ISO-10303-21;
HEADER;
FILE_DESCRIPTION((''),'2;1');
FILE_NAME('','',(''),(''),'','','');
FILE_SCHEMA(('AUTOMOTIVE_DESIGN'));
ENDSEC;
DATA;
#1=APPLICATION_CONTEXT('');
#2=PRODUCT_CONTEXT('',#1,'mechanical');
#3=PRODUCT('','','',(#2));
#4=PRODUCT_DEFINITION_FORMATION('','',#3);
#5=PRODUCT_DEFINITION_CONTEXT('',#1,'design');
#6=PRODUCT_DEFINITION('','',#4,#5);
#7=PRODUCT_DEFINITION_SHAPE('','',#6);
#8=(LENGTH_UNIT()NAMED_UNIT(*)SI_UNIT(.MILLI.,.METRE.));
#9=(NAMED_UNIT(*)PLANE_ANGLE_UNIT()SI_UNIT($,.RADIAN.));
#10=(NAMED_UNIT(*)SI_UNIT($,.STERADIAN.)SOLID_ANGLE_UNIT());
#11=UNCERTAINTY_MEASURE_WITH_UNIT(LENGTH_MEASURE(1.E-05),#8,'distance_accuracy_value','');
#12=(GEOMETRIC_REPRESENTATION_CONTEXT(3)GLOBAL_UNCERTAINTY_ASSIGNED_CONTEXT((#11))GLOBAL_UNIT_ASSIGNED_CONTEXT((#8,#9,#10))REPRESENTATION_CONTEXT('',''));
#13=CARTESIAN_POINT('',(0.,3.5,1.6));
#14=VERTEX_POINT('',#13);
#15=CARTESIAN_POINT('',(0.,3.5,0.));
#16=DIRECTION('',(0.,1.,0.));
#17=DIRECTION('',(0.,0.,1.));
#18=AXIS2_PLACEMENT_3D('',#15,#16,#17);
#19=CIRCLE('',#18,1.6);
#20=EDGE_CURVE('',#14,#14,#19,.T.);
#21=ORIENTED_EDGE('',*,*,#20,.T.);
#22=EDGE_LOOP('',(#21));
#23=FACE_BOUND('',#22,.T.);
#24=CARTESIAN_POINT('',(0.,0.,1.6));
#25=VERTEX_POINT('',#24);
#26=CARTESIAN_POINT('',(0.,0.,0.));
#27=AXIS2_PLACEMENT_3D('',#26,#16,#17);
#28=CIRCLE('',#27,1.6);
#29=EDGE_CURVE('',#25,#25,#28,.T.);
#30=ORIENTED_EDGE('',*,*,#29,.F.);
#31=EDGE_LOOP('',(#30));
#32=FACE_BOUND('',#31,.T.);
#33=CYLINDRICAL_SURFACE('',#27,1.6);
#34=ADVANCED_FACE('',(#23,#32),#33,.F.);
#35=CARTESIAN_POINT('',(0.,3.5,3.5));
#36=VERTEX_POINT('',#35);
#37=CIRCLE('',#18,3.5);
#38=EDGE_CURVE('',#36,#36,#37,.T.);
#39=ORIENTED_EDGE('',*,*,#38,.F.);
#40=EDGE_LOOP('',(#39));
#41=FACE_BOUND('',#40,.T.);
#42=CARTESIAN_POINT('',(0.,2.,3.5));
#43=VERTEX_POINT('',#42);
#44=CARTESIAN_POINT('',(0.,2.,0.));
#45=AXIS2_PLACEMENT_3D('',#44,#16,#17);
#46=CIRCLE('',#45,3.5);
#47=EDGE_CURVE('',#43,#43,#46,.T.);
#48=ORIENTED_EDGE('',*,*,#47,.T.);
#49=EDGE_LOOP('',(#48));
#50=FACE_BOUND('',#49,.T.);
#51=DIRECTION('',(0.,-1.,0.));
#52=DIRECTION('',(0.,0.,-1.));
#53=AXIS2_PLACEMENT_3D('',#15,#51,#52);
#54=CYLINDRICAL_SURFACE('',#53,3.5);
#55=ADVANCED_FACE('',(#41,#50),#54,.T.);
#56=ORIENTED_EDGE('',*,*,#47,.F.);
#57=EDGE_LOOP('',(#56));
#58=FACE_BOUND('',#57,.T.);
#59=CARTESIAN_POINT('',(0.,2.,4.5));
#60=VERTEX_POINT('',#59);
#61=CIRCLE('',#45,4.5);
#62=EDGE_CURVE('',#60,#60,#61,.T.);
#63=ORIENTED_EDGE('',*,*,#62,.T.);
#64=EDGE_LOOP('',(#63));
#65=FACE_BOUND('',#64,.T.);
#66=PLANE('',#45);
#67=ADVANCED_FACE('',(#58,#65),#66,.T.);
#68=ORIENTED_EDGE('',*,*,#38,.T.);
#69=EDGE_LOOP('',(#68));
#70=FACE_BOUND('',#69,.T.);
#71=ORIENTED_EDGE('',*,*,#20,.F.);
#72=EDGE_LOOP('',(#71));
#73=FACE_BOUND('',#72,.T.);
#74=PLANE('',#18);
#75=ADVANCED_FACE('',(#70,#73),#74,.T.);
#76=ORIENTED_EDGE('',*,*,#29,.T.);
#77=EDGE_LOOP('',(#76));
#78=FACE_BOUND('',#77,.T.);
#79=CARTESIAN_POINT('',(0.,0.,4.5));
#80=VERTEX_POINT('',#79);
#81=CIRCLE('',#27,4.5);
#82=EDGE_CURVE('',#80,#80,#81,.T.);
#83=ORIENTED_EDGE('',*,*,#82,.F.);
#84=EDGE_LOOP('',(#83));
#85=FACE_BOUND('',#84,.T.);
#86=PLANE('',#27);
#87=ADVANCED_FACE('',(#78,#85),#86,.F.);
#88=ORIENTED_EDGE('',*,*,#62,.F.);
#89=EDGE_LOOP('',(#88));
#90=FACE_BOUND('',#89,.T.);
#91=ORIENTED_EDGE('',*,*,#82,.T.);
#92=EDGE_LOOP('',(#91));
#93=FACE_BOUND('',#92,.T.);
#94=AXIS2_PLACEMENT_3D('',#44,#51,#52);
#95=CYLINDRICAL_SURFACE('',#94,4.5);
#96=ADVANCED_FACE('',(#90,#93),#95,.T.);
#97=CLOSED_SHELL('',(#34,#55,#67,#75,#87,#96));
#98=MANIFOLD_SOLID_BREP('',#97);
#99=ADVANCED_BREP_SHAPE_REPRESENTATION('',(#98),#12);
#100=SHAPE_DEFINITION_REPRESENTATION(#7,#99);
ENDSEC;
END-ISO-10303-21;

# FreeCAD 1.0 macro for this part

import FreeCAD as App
import Part
import Sketcher
Q = App.Units.Quantity

doc = App.newDocument("Part")
params = doc.addObject("Spreadsheet::Sheet", "Params")
for row, (alias, value) in enumerate([
    ("sketch1_diameter", "9 mm"),
    ("pad1_length", "2 mm"),
    ("sketch2_diameter", "7 mm"),
    ("pad2_length", "1.5 mm"),
    ("sketch3_diameter", "3.2 mm"),
], start=1):
    params.set(f"A{row}", alias)
    params.set(f"B{row}", "=" + value)
    params.setAlias(f"B{row}", alias)

body = doc.addObject("PartDesign::Body", "Body")

# Sketch on XZ plane
sketch1 = body.newObject("Sketcher::SketchObject", "Sketch")
sketch1.AttachmentSupport = (doc.getObject("XZ_Plane"), [""])
sketch1.MapMode = "FlatFace"
sketch1.addGeometry(Part.Circle(App.Vector(0, 0, 0), App.Vector(0, 0, 1), 4.5), False)
sketch1.addConstraint(Sketcher.Constraint("Coincident", 0, 3, -1, 1))
sketch1.addConstraint(Sketcher.Constraint("Diameter", 0, Q("9 mm")))
sketch1.setExpression("Constraints[1]", "Params.sketch1_diameter")
pad1 = body.newObject("PartDesign::Pad", "Pad")
pad1.Profile = sketch1
pad1.setExpression("Length", "Params.pad1_length")
pad1.Reversed = True

# Sketch on XZ plane
sketch2 = body.newObject("Sketcher::SketchObject", "Sketch001")
sketch2.AttachmentSupport = (doc.getObject("XZ_Plane"), [""])
sketch2.MapMode = "FlatFace"
sketch2.AttachmentOffset = App.Placement(App.Vector(0, 0, -2), App.Rotation())
sketch2.addGeometry(Part.Circle(App.Vector(0, 0, 0), App.Vector(0, 0, 1), 3.5), False)
sketch2.addConstraint(Sketcher.Constraint("Coincident", 0, 3, -1, 1))
sketch2.addConstraint(Sketcher.Constraint("Diameter", 0, Q("7 mm")))
sketch2.setExpression("Constraints[1]", "Params.sketch2_diameter")
pad2 = body.newObject("PartDesign::Pad", "Pad001")
pad2.Profile = sketch2
pad2.setExpression("Length", "Params.pad2_length")
pad2.Reversed = True

# Sketch on XZ plane
sketch3 = body.newObject("Sketcher::SketchObject", "Sketch002")
sketch3.AttachmentSupport = (doc.getObject("XZ_Plane"), [""])
sketch3.MapMode = "FlatFace"
sketch3.AttachmentOffset = App.Placement(App.Vector(0, 0, -3.5), App.Rotation())
sketch3.addGeometry(Part.Circle(App.Vector(0, 0, 0), App.Vector(0, 0, 1), 1.6), False)
sketch3.addConstraint(Sketcher.Constraint("Coincident", 0, 3, -1, 1))
sketch3.addConstraint(Sketcher.Constraint("Diameter", 0, Q("3.2 mm")))
sketch3.setExpression("Constraints[1]", "Params.sketch3_diameter")
pocket1 = body.newObject("PartDesign::Pocket", "Pocket")
pocket1.Profile = sketch3
pocket1.Type = "ThroughAll"
pocket1.Reversed = True

doc.recompute()
